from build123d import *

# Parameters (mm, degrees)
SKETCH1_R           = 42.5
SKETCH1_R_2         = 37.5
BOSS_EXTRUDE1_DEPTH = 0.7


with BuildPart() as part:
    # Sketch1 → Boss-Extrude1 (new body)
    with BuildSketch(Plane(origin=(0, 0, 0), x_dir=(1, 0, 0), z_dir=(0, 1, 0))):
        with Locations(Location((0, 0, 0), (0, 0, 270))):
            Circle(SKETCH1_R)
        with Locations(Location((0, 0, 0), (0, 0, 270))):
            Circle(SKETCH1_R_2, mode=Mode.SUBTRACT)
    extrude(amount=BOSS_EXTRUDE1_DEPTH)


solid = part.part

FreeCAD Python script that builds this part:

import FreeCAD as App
import Part
import Sketcher
from FreeCAD import Vector
Q = App.Units.Quantity

doc = App.newDocument("Part")
body = doc.addObject("PartDesign::Body", "Body")

# Sketch on XZ plane
sketch1 = body.newObject("Sketcher::SketchObject", "Sketch")
sketch1.AttachmentSupport = (doc.getObject("XZ_Plane"), [""])
sketch1.MapMode = "FlatFace"
sketch1.addGeometry([
    Part.Circle(Vector(0, 0, 0), Vector(0, 0, 1), 42.5),
    Part.Circle(Vector(0, 0, 0), Vector(0, 0, 1), 37.5),
], False)
sketch1.addConstraint([
    Sketcher.Constraint("Coincident", 0, 3, -1, 1),
    Sketcher.Constraint("Coincident", 1, 3, -1, 1),
    Sketcher.Constraint("Diameter", 0, Q("85 mm")),
    Sketcher.Constraint("Diameter", 1, Q("75 mm")),
])
pad1 = body.newObject("PartDesign::Pad", "Pad")
pad1.Profile = sketch1
pad1.Length = 0.7
pad1.Reversed = True

doc.recompute()
